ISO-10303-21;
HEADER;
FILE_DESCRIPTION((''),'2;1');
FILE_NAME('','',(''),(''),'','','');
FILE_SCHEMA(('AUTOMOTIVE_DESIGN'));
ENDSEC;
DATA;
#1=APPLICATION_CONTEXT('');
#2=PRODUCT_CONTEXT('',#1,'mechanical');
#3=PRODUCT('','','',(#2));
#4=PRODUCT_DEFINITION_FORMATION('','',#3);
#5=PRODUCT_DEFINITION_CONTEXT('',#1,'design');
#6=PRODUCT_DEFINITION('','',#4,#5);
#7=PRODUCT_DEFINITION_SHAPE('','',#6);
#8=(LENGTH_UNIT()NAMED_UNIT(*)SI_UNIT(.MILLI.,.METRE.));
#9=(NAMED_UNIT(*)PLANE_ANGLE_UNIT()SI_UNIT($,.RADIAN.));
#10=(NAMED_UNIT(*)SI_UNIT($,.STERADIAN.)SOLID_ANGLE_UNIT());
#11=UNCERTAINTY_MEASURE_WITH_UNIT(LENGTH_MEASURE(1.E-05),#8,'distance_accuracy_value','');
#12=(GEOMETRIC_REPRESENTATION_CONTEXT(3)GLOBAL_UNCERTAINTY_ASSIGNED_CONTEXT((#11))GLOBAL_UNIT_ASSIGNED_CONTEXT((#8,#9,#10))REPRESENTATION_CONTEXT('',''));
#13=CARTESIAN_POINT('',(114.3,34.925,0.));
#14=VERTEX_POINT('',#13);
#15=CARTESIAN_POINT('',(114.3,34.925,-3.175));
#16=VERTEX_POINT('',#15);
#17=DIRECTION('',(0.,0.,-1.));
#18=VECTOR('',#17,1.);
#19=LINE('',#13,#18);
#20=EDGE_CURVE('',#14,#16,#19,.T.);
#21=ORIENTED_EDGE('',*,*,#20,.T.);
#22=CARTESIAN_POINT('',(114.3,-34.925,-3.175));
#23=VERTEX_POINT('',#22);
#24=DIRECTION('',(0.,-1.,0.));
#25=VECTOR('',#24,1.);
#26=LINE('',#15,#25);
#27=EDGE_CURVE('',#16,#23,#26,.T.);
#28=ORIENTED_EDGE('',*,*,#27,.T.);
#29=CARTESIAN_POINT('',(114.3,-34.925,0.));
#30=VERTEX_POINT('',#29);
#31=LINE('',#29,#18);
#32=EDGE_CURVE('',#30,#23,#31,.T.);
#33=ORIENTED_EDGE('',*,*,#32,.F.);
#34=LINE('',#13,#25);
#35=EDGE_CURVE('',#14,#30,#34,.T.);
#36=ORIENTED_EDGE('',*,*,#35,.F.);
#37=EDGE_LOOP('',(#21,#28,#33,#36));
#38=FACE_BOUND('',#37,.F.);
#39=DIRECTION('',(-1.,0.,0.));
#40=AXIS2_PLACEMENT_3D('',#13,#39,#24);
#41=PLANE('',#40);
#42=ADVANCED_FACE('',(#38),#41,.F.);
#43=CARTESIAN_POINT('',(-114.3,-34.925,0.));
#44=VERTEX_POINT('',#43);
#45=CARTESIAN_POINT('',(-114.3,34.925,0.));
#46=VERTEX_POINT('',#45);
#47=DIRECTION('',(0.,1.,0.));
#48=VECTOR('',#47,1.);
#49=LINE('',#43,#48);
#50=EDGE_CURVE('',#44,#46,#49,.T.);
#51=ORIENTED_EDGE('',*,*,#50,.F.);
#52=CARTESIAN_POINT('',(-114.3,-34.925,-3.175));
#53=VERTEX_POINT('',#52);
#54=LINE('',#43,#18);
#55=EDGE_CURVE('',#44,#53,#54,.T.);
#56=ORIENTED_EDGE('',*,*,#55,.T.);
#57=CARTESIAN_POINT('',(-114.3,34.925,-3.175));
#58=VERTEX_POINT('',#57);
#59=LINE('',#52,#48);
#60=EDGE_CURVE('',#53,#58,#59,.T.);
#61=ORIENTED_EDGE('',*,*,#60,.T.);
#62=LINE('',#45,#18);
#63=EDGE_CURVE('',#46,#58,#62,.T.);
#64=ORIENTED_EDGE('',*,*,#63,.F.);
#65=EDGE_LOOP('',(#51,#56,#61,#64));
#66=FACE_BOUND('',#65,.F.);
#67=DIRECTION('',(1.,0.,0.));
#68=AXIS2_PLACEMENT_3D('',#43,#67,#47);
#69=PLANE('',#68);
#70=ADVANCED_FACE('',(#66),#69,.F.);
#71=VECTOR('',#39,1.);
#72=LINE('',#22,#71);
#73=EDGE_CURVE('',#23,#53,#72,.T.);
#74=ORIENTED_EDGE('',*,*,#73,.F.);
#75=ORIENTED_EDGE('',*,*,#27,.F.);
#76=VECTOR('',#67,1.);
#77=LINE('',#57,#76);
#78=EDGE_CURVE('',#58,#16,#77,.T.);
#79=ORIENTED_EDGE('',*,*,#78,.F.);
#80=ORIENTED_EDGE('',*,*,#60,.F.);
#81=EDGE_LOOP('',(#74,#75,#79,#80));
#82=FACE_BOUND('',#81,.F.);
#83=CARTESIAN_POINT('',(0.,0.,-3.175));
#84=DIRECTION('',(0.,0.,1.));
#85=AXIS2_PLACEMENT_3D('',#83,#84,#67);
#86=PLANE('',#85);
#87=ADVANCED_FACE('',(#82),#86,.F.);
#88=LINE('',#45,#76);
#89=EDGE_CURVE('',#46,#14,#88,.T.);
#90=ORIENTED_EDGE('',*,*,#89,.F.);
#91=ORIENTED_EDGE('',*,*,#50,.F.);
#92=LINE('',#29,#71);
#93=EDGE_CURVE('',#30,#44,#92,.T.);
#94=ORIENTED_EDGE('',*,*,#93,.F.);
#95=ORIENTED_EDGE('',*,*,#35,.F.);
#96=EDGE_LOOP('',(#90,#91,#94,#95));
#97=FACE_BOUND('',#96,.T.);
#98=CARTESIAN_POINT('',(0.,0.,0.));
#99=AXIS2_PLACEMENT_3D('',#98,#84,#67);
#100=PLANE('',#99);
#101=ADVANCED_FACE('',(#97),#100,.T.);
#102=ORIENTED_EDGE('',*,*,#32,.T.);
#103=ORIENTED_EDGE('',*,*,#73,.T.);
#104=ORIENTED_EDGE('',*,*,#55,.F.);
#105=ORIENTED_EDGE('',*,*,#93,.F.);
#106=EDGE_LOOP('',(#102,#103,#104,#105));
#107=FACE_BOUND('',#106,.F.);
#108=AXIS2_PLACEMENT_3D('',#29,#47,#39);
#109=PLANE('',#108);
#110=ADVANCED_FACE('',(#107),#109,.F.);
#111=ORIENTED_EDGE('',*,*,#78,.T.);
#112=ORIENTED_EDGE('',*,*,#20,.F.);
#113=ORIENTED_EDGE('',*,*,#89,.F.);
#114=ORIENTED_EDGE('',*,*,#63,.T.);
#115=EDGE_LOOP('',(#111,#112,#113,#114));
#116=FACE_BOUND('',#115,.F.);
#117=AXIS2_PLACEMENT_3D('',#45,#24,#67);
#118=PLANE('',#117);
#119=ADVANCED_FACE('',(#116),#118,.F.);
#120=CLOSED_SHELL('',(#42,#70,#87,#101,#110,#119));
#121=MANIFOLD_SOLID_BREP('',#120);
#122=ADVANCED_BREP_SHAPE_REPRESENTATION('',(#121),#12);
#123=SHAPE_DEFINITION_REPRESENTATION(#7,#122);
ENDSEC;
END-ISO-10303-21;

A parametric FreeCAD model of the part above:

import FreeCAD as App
import Part
import Sketcher
Q = App.Units.Quantity


def add_polygon(sketch, points):
    """Adds a closed chain of lines whose ends are joined by coincident constraints."""
    first, n = sketch.GeometryCount, len(points)
    for a, b in zip(points, points[1:] + points[:1]):
        sketch.addGeometry(Part.LineSegment(App.Vector(*a, 0), App.Vector(*b, 0)), False)
    for i in range(n):
        sketch.addConstraint(Sketcher.Constraint("Coincident", first + i, 2, first + (i + 1) % n, 1))

doc = App.newDocument("Part")
body = doc.addObject("PartDesign::Body", "Body")

sketch1 = doc.addObject("Sketcher::SketchObject", "Sketch")
body.addObject(sketch1)
sketch1.AttachmentSupport = (doc.XY_Plane, [""])
sketch1.MapMode = "FlatFace"
add_polygon(sketch1, [(114, 35), (-114, 35), (-114, -35), (114, -35)])
sketch1.addConstraint([
    Sketcher.Constraint("Horizontal", 0),
    Sketcher.Constraint("Vertical", 1),
    Sketcher.Constraint("Horizontal", 2),
    Sketcher.Constraint("Vertical", 3),
    Sketcher.Constraint("Symmetric", 0, 2, 2, 2, -1, 1),
    Sketcher.Constraint("DistanceX", 0, 2, 0, 1, Q("9 in")),
    Sketcher.Constraint("DistanceY", 1, 2, 1, 1, Q("2.75 in")),
])
pad1 = doc.addObject("PartDesign::Pad", "Pad")
body.addObject(pad1)
pad1.Profile = sketch1
pad1.Length = Q("0.125 in")
pad1.Reversed = True

doc.recompute()
